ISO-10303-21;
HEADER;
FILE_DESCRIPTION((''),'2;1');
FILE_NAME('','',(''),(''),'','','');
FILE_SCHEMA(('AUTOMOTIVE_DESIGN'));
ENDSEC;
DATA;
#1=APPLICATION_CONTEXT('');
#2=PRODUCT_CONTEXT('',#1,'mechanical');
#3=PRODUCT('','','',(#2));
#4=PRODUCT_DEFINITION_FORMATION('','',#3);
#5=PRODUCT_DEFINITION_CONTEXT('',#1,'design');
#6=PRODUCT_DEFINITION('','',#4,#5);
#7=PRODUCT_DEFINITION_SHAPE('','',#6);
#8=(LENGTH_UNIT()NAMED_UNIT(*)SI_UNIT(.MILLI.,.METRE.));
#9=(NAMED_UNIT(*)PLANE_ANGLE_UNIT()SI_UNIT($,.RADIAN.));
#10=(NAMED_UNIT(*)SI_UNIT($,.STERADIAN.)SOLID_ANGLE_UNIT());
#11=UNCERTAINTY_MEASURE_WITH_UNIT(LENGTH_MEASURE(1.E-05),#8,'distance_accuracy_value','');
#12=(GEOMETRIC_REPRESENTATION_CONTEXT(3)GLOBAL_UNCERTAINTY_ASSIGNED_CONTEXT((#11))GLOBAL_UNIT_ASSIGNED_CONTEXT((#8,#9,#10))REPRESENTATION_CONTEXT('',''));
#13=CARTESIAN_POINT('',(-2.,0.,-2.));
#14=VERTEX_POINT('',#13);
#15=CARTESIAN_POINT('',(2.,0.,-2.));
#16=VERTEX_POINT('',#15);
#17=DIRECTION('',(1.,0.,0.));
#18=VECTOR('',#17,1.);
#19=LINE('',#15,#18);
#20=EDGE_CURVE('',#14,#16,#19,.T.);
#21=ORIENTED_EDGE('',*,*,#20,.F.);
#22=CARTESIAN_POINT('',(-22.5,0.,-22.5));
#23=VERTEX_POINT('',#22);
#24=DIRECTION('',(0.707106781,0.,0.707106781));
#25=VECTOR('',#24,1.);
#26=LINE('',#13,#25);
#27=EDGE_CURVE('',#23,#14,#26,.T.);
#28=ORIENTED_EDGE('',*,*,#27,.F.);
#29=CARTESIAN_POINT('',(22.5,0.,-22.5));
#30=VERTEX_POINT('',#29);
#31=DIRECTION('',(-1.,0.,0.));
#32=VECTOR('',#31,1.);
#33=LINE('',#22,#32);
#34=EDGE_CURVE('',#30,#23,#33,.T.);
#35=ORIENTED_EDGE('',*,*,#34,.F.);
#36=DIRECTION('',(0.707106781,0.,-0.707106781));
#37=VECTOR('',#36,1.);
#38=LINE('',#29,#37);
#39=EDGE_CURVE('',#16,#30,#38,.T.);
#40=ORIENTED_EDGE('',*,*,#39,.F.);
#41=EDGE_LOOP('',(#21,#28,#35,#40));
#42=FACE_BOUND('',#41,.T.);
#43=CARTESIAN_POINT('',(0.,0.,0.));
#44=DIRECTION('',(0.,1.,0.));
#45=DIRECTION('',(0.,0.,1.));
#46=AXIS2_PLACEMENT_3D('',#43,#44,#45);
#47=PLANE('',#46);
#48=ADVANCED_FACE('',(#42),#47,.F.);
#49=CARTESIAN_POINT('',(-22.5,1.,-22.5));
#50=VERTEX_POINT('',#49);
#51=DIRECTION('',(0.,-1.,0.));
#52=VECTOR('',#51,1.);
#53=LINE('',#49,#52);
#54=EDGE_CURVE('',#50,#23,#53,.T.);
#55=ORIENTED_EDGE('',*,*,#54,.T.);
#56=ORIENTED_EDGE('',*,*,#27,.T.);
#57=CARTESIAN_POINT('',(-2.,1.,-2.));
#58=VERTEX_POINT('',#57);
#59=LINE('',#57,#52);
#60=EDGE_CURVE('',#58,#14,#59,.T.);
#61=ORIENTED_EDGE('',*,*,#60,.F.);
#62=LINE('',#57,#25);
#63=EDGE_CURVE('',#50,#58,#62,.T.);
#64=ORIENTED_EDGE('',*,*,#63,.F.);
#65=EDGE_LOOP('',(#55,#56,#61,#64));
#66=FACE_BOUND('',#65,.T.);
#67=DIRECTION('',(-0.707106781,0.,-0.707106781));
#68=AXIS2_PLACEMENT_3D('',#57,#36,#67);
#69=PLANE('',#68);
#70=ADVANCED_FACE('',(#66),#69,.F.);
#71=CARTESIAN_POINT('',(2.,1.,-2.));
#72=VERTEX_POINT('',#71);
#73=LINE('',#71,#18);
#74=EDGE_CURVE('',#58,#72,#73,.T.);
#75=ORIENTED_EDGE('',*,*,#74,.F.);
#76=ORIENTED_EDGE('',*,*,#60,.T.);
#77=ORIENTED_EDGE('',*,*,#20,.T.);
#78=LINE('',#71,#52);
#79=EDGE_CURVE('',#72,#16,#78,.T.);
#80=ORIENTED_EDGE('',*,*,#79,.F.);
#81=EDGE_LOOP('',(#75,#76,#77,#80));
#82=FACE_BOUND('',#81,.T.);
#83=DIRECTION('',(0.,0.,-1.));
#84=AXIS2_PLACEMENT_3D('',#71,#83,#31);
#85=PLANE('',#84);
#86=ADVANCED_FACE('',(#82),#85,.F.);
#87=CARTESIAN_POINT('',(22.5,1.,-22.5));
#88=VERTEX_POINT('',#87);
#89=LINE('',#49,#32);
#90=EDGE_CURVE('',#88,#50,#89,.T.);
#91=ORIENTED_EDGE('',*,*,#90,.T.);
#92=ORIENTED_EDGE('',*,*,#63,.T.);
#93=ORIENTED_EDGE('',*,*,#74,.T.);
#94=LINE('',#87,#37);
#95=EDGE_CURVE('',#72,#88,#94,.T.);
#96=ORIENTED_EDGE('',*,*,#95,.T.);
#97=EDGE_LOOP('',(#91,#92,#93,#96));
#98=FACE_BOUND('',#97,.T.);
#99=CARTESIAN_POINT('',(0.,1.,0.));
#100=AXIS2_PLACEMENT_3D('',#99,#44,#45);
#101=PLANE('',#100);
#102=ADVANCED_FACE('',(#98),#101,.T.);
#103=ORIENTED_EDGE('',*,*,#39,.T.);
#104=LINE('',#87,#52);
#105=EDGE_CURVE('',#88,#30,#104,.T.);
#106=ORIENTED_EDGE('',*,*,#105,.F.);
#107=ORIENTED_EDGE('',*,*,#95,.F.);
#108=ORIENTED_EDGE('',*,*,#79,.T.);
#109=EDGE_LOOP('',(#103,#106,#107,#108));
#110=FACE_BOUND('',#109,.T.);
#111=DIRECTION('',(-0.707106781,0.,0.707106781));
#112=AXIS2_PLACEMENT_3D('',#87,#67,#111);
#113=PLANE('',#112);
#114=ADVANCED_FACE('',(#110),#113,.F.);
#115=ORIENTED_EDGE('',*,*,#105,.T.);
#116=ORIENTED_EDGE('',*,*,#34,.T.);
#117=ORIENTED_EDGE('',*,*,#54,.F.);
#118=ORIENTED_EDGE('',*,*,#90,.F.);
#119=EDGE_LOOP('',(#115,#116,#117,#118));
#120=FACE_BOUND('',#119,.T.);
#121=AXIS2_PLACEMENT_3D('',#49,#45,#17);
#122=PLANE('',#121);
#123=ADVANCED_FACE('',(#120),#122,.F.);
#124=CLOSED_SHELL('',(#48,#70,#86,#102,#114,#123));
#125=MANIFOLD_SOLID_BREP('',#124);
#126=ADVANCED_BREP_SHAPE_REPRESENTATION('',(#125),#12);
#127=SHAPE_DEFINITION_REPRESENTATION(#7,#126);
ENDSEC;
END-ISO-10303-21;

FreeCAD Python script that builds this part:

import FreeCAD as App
import Part
import Sketcher
from FreeCAD import Vector
Q = App.Units.Quantity

doc = App.newDocument("Part")
params = doc.addObject("Spreadsheet::Sheet", "Params")
for row, (alias, value) in enumerate([
    ("sketch1_width", "45 mm"),
    ("sketch1_width2", "4 mm"),
    ("pad1_length", "1 mm"),
], start=1):
    params.set(f"A{row}", alias)
    params.set(f"B{row}", "=" + value)
    params.setAlias(f"B{row}", alias)

body = doc.addObject("PartDesign::Body", "Body")

# Sketch on XZ plane
sketch1 = body.newObject("Sketcher::SketchObject", "Sketch")
sketch1.AttachmentSupport = (doc.getObject("XZ_Plane"), [""])
sketch1.MapMode = "FlatFace"
sketch1.addGeometry(Part.LineSegment(Vector(22.5, -22.5, 0), Vector(-22.5, -22.5, 0)), False)
sketch1.addGeometry(Part.LineSegment(Vector(-22.5, -22.5, 0), Vector(-2, -2, 0)), False)
sketch1.addGeometry(Part.LineSegment(Vector(-2, -2, 0), Vector(2, -2, 0)), False)
sketch1.addGeometry(Part.LineSegment(Vector(2, -2, 0), Vector(22.5, -22.5, 0)), False)
sketch1.addConstraint(Sketcher.Constraint("Coincident", 0, 2, 1, 1))
sketch1.addConstraint(Sketcher.Constraint("Coincident", 1, 2, 2, 1))
sketch1.addConstraint(Sketcher.Constraint("Coincident", 2, 2, 3, 1))
sketch1.addConstraint(Sketcher.Constraint("Coincident", 3, 2, 0, 1))
sketch1.addConstraint(Sketcher.Constraint("Horizontal", 0))
sketch1.addConstraint(Sketcher.Constraint("Horizontal", 2))
sketch1.addConstraint(Sketcher.Constraint("Perpendicular", 1, 3))
sketch1.addConstraint(Sketcher.Constraint("Equal", 1, 3))
sketch1.addConstraint(Sketcher.Constraint("DistanceX", 0, 2, 0, 1, Q("45 mm")))
sketch1.addConstraint(Sketcher.Constraint("DistanceX", 2, 1, 2, 2, Q("4 mm")))
sketch1.addConstraint(Sketcher.Constraint("DistanceX", 1, 2, -1, 1, Q("2 mm")))
sketch1.addConstraint(Sketcher.Constraint("DistanceY", 1, 2, -1, 1, Q("2 mm")))
sketch1.setExpression("Constraints[8]", "Params.sketch1_width")
sketch1.setExpression("Constraints[9]", "Params.sketch1_width2")
pad1 = body.newObject("PartDesign::Pad", "Pad")
pad1.Profile = sketch1
pad1.setExpression("Length", "Params.pad1_length")
pad1.Reversed = True

doc.recompute()
